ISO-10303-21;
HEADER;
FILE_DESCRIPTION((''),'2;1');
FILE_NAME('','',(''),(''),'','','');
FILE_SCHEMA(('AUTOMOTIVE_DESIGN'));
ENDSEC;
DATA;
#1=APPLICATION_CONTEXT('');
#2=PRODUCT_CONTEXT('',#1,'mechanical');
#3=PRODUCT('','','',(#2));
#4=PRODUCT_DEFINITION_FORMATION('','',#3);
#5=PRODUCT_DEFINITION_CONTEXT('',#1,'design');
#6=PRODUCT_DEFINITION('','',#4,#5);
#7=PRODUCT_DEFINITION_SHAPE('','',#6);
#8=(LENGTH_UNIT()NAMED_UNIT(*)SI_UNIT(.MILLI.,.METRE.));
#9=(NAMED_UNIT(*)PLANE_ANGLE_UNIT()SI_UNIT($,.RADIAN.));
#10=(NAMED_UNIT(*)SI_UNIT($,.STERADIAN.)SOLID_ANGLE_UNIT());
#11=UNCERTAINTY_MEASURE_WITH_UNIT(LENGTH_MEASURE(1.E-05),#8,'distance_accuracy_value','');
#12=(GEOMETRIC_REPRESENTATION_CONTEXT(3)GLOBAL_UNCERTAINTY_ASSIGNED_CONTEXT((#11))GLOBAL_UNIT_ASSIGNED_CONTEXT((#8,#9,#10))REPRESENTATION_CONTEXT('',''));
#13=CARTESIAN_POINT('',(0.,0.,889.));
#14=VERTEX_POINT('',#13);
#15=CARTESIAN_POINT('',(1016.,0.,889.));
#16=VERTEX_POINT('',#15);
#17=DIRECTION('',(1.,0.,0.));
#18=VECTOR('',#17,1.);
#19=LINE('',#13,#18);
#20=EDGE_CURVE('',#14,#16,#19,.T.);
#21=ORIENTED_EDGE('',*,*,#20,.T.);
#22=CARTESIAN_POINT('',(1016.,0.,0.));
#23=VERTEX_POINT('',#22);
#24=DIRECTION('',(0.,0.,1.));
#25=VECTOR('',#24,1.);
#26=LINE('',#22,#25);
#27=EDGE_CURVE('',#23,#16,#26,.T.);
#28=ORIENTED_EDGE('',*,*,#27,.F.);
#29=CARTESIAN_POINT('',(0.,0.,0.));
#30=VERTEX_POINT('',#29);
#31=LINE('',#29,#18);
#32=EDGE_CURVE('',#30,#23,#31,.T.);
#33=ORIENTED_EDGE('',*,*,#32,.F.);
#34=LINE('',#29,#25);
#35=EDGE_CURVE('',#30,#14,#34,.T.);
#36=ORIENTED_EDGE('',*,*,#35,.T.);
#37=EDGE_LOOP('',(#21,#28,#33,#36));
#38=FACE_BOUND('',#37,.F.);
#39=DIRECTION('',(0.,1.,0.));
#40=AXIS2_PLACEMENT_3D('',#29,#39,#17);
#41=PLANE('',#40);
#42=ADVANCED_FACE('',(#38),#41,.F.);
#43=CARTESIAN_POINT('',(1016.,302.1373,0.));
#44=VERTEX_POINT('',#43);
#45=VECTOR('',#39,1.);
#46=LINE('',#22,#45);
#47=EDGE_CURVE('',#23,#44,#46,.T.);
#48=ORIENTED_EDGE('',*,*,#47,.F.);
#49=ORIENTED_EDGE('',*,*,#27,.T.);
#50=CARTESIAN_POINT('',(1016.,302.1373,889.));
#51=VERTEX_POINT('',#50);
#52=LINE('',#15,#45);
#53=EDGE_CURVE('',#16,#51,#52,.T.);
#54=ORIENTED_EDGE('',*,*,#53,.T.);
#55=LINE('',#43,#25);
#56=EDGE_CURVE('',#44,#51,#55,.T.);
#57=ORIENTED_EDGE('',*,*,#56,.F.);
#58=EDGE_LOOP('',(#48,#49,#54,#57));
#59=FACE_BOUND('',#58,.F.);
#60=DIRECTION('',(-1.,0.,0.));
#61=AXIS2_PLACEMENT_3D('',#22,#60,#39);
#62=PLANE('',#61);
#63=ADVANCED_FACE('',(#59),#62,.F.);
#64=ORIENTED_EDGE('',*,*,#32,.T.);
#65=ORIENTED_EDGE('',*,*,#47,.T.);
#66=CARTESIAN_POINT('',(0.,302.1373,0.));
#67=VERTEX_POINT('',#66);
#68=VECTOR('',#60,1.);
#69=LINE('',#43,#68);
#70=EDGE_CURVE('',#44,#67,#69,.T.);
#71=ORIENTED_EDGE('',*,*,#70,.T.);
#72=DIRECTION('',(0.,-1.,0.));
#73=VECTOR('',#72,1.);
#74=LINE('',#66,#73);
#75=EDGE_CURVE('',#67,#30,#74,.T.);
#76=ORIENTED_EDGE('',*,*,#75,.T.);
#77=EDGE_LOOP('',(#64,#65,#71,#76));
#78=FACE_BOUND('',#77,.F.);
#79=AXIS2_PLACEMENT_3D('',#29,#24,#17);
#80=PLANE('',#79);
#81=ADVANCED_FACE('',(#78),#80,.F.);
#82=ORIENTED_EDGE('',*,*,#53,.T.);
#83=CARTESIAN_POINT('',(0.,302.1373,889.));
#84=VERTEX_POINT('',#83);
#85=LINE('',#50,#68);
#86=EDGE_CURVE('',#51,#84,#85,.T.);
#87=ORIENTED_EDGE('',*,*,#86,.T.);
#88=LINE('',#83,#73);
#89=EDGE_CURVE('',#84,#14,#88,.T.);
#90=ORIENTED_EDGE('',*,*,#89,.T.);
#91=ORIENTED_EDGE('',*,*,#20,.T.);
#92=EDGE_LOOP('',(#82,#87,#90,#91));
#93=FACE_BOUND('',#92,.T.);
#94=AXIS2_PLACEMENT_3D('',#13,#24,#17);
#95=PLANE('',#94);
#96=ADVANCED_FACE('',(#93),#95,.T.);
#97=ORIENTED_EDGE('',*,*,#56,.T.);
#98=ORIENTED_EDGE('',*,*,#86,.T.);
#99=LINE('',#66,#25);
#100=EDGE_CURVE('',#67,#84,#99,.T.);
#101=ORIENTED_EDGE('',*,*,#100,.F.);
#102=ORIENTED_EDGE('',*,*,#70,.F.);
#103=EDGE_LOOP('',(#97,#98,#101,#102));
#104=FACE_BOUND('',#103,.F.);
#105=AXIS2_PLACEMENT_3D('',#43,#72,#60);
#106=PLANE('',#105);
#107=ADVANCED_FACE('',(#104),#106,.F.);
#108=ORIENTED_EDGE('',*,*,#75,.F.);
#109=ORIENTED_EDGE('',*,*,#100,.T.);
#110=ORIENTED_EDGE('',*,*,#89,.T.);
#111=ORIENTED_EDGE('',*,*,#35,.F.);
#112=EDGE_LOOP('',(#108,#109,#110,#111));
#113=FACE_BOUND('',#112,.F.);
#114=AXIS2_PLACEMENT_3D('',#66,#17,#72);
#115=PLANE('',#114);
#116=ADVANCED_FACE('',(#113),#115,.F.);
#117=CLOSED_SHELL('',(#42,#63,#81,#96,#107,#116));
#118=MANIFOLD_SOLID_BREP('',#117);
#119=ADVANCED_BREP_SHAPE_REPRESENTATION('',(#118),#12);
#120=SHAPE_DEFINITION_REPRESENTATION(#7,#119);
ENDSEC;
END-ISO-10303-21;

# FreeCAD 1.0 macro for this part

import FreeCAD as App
import Part
import Sketcher
from FreeCAD import Vector
Q = App.Units.Quantity


def add_polygon(sketch, points):
    """Adds a closed chain of lines whose ends are joined by coincident constraints."""
    first, n = sketch.GeometryCount, len(points)
    for a, b in zip(points, points[1:] + points[:1]):
        sketch.addGeometry(Part.LineSegment(App.Vector(*a, 0), App.Vector(*b, 0)), False)
    for i in range(n):
        sketch.addConstraint(Sketcher.Constraint("Coincident", first + i, 2, first + (i + 1) % n, 1))

doc = App.newDocument("Part")
body = doc.addObject("PartDesign::Body", "Body")

sketch1 = body.newObject("Sketcher::SketchObject", "Sketch")
sketch1.AttachmentSupport = (doc.getObject("XY_Plane"), [""])
sketch1.MapMode = "FlatFace"
add_polygon(sketch1, [(0, 302), (0, 0), (1016, 0), (1016, 302)])
sketch1.addConstraint(Sketcher.Constraint("Vertical", 0))
sketch1.addConstraint(Sketcher.Constraint("Horizontal", 1))
sketch1.addConstraint(Sketcher.Constraint("Vertical", 2))
sketch1.addConstraint(Sketcher.Constraint("Horizontal", 3))
sketch1.addConstraint(Sketcher.Constraint("Coincident", 0, 2, -1, 1))
sketch1.addConstraint(Sketcher.Constraint("DistanceX", 1, 1, 1, 2, Q("40 in")))
sketch1.addConstraint(Sketcher.Constraint("DistanceY", 0, 2, 0, 1, Q("302.1373 mm")))
pad1 = body.newObject("PartDesign::Pad", "Pad")
pad1.Profile = sketch1
pad1.Length = Q("35 in")

doc.recompute()
